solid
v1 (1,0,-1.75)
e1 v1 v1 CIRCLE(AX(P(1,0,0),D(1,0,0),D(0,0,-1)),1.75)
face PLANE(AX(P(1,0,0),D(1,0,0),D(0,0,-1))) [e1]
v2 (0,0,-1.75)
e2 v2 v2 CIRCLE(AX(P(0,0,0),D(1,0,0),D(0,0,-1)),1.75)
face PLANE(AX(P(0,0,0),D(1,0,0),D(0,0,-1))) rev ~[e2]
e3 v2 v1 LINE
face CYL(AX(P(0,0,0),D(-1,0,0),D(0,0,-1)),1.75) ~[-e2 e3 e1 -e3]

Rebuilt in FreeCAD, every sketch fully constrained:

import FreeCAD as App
import Part
import Sketcher
from FreeCAD import Vector

doc = App.newDocument("Part")
body = doc.addObject("PartDesign::Body", "Body")

# Sketch on YZ plane
sketch1 = body.newObject("Sketcher::SketchObject", "Sketch")
sketch1.AttachmentSupport = (doc.getObject("YZ_Plane"), [""])
sketch1.MapMode = "FlatFace"
sketch1.addGeometry(Part.Circle(Vector(0, 0, 0), Vector(0, 0, 1), 1.8), False)
sketch1.addConstraint([
    Sketcher.Constraint("Coincident", 0, 3, -1, 1),
    Sketcher.Constraint("Diameter", 0, 3.5),
])
pad1 = body.newObject("PartDesign::Pad", "Pad")
pad1.Profile = sketch1
pad1.Length = 1

doc.recompute()
